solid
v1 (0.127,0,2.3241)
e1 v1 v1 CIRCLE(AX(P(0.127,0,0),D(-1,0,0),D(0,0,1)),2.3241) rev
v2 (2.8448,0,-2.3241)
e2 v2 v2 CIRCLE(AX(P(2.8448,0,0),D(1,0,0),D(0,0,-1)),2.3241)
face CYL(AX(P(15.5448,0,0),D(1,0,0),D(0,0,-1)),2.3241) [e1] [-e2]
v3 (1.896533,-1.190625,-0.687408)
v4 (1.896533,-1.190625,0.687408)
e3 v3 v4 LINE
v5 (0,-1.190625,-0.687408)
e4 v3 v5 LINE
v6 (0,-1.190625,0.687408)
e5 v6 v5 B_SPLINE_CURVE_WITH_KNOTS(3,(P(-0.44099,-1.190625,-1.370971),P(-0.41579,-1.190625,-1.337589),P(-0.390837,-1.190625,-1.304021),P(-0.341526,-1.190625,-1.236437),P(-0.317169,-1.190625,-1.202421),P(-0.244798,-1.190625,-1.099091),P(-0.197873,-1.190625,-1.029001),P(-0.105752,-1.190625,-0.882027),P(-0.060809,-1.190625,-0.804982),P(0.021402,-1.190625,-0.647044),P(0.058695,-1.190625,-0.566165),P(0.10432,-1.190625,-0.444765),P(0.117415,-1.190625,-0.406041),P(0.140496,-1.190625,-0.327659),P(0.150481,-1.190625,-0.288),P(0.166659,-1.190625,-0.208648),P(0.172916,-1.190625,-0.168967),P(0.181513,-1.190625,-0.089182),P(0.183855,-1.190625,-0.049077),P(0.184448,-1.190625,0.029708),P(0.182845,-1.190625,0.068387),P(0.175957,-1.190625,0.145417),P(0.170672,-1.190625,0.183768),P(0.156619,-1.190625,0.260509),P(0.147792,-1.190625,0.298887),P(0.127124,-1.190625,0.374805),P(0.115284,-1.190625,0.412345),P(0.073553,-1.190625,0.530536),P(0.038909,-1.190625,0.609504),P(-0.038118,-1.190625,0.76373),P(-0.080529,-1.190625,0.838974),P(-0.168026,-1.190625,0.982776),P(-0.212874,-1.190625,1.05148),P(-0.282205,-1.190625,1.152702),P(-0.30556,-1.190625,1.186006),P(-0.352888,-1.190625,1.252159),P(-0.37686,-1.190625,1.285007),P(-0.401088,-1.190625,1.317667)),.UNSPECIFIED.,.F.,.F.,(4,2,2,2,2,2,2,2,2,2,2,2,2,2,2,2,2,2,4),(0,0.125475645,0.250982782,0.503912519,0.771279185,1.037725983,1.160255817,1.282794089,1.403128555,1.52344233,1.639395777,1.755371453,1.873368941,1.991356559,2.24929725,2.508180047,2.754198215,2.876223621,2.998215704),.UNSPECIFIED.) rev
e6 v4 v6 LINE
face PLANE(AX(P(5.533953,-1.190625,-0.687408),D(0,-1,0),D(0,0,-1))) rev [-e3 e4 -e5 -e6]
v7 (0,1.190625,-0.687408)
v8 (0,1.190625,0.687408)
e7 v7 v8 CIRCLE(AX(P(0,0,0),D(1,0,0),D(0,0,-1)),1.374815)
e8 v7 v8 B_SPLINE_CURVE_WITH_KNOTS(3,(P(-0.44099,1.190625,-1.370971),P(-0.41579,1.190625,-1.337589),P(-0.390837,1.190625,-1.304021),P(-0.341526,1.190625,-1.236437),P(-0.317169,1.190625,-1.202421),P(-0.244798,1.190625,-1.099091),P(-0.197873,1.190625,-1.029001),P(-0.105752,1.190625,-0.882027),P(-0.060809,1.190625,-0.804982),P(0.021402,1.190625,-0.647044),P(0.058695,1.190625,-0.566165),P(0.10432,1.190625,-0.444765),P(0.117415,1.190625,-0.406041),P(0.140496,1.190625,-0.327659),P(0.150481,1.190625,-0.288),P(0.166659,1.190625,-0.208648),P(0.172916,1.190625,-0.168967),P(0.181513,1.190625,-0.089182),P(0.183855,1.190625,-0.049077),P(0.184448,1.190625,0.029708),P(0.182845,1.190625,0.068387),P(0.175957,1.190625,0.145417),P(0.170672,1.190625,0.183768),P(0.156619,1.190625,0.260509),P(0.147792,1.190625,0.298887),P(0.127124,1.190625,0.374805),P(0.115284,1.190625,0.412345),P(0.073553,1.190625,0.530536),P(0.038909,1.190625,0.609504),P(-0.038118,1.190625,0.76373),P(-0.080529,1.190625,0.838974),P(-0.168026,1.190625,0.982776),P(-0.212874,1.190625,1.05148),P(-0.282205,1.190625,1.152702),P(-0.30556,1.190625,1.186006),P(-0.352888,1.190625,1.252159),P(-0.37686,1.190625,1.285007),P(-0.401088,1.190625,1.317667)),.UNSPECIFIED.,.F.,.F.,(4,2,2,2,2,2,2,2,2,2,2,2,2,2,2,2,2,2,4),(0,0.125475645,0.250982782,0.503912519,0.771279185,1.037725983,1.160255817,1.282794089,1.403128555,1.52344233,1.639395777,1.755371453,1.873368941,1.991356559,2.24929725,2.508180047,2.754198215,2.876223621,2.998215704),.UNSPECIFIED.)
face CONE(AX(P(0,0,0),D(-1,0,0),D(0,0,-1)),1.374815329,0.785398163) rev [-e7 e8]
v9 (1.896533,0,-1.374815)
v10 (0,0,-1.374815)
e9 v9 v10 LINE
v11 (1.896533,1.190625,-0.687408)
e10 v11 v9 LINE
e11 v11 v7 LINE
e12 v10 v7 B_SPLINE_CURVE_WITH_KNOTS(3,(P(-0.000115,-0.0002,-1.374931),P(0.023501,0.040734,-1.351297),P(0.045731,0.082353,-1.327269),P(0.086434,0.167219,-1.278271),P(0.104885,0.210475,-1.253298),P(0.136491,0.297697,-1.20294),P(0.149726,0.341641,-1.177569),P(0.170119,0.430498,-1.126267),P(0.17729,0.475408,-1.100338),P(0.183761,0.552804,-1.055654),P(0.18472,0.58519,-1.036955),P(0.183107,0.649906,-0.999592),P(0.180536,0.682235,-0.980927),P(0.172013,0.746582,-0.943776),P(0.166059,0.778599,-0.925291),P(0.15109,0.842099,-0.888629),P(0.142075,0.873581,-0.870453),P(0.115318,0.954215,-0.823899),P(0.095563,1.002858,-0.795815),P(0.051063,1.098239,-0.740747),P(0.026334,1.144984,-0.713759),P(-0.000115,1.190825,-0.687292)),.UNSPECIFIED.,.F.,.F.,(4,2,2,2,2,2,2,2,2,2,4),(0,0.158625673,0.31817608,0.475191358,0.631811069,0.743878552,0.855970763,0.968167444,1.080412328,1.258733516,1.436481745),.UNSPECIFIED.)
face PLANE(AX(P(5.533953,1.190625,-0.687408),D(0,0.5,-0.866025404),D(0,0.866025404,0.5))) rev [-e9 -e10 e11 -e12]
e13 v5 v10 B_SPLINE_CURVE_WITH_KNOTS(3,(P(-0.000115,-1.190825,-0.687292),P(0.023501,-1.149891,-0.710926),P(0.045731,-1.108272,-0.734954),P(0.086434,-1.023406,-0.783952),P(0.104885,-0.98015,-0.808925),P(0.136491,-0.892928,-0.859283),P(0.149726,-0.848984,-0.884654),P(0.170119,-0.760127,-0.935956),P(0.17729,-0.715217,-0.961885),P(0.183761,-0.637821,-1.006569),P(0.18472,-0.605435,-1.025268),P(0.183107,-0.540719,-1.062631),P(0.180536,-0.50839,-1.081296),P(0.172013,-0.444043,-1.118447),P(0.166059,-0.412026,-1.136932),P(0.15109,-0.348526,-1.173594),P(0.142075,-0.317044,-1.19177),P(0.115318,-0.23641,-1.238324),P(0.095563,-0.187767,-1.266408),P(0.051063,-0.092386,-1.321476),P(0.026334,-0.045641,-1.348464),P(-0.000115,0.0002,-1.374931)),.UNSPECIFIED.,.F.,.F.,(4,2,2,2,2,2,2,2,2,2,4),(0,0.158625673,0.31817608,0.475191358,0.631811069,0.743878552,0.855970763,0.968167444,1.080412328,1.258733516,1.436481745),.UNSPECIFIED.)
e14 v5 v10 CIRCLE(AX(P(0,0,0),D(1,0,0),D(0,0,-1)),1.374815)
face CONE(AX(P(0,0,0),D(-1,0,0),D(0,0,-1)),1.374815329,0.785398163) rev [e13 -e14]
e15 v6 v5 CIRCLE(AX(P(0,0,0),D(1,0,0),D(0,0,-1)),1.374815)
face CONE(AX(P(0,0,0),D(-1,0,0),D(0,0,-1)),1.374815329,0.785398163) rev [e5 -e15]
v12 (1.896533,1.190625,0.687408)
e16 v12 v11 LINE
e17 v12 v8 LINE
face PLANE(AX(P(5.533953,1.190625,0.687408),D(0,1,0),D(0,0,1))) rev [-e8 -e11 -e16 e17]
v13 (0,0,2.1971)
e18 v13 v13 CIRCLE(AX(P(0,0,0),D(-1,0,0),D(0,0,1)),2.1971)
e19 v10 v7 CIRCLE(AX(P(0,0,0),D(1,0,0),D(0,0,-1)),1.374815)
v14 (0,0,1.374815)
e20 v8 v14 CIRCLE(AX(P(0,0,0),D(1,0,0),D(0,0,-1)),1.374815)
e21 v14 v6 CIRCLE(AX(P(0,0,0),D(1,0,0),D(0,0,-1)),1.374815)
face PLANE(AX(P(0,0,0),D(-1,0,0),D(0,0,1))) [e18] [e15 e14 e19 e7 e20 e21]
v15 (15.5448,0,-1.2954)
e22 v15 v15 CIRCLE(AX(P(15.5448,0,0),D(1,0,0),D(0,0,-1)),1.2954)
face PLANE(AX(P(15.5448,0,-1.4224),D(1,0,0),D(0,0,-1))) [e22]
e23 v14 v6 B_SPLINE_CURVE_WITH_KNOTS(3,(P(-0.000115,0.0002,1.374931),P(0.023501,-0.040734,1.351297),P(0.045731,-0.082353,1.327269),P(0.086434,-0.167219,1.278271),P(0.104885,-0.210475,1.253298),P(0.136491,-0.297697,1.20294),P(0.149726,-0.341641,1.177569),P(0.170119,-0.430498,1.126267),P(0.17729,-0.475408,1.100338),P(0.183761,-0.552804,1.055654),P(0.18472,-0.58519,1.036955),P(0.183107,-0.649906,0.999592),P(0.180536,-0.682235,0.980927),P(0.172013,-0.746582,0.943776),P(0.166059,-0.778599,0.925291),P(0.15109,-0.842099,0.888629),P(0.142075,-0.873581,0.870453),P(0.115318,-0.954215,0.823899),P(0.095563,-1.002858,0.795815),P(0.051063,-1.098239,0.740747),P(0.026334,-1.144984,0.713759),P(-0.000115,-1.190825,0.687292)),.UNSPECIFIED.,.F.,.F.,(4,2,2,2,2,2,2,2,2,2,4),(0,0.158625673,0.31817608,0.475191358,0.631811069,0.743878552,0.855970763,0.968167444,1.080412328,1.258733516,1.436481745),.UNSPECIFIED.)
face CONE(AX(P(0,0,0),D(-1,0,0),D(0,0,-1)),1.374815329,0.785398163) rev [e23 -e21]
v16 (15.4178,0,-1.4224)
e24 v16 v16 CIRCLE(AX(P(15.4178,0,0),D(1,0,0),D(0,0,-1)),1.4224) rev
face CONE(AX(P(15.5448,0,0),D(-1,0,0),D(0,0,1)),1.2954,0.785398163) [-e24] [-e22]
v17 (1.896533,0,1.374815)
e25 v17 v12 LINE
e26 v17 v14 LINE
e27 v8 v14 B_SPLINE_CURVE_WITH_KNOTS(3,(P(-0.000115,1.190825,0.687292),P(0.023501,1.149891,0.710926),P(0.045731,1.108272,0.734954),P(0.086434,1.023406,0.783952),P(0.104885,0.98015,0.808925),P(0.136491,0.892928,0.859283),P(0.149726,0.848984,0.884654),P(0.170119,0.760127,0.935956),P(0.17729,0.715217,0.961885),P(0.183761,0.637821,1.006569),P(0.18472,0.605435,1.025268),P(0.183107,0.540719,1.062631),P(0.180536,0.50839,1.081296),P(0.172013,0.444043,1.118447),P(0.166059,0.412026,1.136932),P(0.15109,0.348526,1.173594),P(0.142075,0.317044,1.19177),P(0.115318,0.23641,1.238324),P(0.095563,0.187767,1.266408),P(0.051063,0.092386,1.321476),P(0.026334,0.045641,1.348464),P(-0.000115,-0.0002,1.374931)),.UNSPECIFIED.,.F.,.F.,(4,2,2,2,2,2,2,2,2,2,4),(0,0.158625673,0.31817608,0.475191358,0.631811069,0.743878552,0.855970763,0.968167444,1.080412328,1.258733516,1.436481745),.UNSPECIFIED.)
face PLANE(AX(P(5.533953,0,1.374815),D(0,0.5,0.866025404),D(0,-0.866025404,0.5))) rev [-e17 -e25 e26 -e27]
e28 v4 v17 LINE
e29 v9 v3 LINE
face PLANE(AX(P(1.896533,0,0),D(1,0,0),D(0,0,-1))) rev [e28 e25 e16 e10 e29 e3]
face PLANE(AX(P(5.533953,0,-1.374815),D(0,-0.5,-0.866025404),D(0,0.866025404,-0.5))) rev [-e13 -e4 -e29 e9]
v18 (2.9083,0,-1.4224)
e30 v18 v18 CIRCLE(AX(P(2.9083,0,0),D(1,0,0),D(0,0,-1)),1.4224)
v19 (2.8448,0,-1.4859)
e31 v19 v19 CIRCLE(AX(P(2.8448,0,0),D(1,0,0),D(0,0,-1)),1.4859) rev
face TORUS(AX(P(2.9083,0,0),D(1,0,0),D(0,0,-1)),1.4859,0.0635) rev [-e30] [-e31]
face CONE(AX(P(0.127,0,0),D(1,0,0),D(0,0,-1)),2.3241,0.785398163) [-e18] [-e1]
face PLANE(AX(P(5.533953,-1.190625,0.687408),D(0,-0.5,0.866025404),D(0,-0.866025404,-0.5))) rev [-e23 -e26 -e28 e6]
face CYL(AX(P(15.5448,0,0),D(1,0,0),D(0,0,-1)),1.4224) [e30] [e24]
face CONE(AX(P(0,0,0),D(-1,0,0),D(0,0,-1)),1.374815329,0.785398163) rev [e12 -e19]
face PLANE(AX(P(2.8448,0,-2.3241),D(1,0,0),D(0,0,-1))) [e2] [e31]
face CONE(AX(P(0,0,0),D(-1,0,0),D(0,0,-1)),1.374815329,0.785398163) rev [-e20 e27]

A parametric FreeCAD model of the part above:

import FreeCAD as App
import Part
import Sketcher

V = App.Vector
Q = App.Units.Quantity


def edges_at(feature, points):
    """Names of the edges that pass closest to the given points."""
    edges = feature.Shape.Edges
    near = lambda p: min(range(len(edges)), key=lambda i: edges[i].distToShape(Part.Vertex(*p))[0])
    return sorted({f"Edge{near(p) + 1}" for p in points})


def add_polygon(sketch, points):
    """Adds a closed chain of lines whose ends are joined by coincident constraints."""
    first, n = sketch.GeometryCount, len(points)
    for a, b in zip(points, points[1:] + points[:1]):
        sketch.addGeometry(Part.LineSegment(App.Vector(*a, 0), App.Vector(*b, 0)), False)
    for i in range(n):
        sketch.addConstraint(Sketcher.Constraint("Coincident", first + i, 2, first + (i + 1) % n, 1))

doc = App.newDocument("Part")
params = doc.addObject("Spreadsheet::Sheet", "Params")
for row, (alias, value) in enumerate([
    ("sketch1_width", "0.5 in"),
    ("sketch1_width2", "0.612 in"),
    ("sketch1_height", "0.056 in"),
    ("revolution_angle", "360 deg"),
    ("pocket1_length", "1.896533 mm"),
    ("chamfer_size", "0.005 in"),
    ("fillet_radius", "0.0025 in"),
    ("groove_angle", "360 deg"),
], start=1):
    params.set(f"A{row}", alias)
    params.set(f"B{row}", "=" + value)
    params.setAlias(f"B{row}", alias)

body = doc.addObject("PartDesign::Body", "Body")

# Sketch on XZ plane
sketch1 = doc.addObject("Sketcher::SketchObject", "Sketch")
body.addObject(sketch1)
sketch1.AttachmentSupport = (doc.XZ_Plane, [""])
sketch1.MapMode = "FlatFace"
add_polygon(sketch1, [(0, -2.3), (0, 0), (15.5, 0), (15.5, -1.4), (2.8, -1.4), (2.8, -2.3)])  # lines 0-5
sketch1.addConstraint(Sketcher.Constraint("Vertical", 0))
sketch1.addConstraint(Sketcher.Constraint("Horizontal", 1))
sketch1.addConstraint(Sketcher.Constraint("Vertical", 2))
sketch1.addConstraint(Sketcher.Constraint("Horizontal", 3))
sketch1.addConstraint(Sketcher.Constraint("Vertical", 4))
sketch1.addConstraint(Sketcher.Constraint("Horizontal", 5))
sketch1.addConstraint(Sketcher.Constraint("Coincident", 0, 2, -1, 1))
sketch1.addConstraint(Sketcher.Constraint("DistanceX", 3, 2, 3, 1, Q("0.5 in")))
sketch1.addConstraint(Sketcher.Constraint("DistanceX", 1, 1, 1, 2, Q("0.612 in")))
sketch1.addConstraint(Sketcher.Constraint("DistanceY", 2, 2, 2, 1, Q("0.056 in")))
sketch1.addConstraint(Sketcher.Constraint("DistanceY", 0, 1, 0, 2, Q("0.0915 in")))
sketch1.setExpression("Constraints[13]", "Params.sketch1_width")
sketch1.setExpression("Constraints[14]", "Params.sketch1_width2")
sketch1.setExpression("Constraints[15]", "Params.sketch1_height")
revolution = doc.addObject("PartDesign::Revolution", "Revolution")
body.addObject(revolution)
revolution.Profile = sketch1
revolution.ReferenceAxis = (sketch1, ["H_Axis"])
revolution.setExpression("Angle", "Params.revolution_angle")

# Sketch on YZ plane
sketch2 = doc.addObject("Sketcher::SketchObject", "Sketch001")
body.addObject(sketch2)
sketch2.AttachmentSupport = (doc.YZ_Plane, [""])
sketch2.MapMode = "FlatFace"
sketch2.AttachmentOffset = App.Placement(V(0, 0, 1.896533), App.Rotation())
add_polygon(sketch2, [(0, -1.4), (-1.2, -0.7), (-1.2, 0.7), (0, 1.4), (1.2, 0.7), (1.2, -0.7)])  # lines 0-5
sketch2.addConstraint(Sketcher.Constraint("Vertical", 1))
sketch2.addConstraint(Sketcher.Constraint("Vertical", 4))
sketch2.addConstraint(Sketcher.Constraint("Symmetric", 0, 2, 3, 2, -1, 1))
sketch2.addConstraint(Sketcher.Constraint("Symmetric", 2, 2, 5, 2, -1, 1))
sketch2.addConstraint(Sketcher.Constraint("PointOnObject", 2, 2, -2))
sketch2.addConstraint(Sketcher.Constraint("Parallel", 2, 5))
sketch2.addConstraint(Sketcher.Constraint("Horizontal", 1, 2, 3, 2))
sketch2.addConstraint(Sketcher.Constraint("Angle", 0, Q("150 deg")))
sketch2.addConstraint(Sketcher.Constraint("DistanceX", 0, 2, -1, 1, Q("0.046875 in")))
sketch2.addConstraint(Sketcher.Constraint("DistanceY", 1, 1, 1, 2, Q("1.374815 mm")))
pocket1 = doc.addObject("PartDesign::Pocket", "Pocket")
body.addObject(pocket1)
pocket1.Profile = sketch2
pocket1.setExpression("Length", "Params.pocket1_length")
doc.recompute()

chamfer = doc.addObject("PartDesign::Chamfer", "Chamfer")
body.addObject(chamfer)
chamfer.Base = (pocket1, edges_at(pocket1, [(0, 0, 2.324), (15.545, 0, 1.422)]))
chamfer.setExpression("Size", "Params.chamfer_size")
doc.recompute()

fillet = doc.addObject("PartDesign::Fillet", "Fillet")
body.addObject(fillet)
fillet.Base = (chamfer, edges_at(chamfer, [(2.845, 0, 1.422)]))
fillet.setExpression("Radius", "Params.fillet_radius")

# Sketch on XZ plane
sketch3 = doc.addObject("Sketcher::SketchObject", "Sketch002")
body.addObject(sketch3)
sketch3.AttachmentSupport = (doc.XZ_Plane, [""])
sketch3.MapMode = "FlatFace"
add_polygon(sketch3, [(0, 0), (0, 1.4), (1.4, 0)])  # lines 0-2
sketch3.addConstraint(Sketcher.Constraint("Vertical", 0))
sketch3.addConstraint(Sketcher.Constraint("Horizontal", 2))
sketch3.addConstraint(Sketcher.Constraint("Coincident", 2, 2, -1, 1))
sketch3.addConstraint(Sketcher.Constraint("Equal", 2, 0))
sketch3.addConstraint(Sketcher.Constraint("DistanceX", 2, 2, 2, 1, Q("1.374815 mm")))
groove = doc.addObject("PartDesign::Groove", "Groove")
body.addObject(groove)
groove.Profile = sketch3
groove.ReferenceAxis = (sketch3, ["H_Axis"])
groove.setExpression("Angle", "Params.groove_angle")

doc.recompute()
